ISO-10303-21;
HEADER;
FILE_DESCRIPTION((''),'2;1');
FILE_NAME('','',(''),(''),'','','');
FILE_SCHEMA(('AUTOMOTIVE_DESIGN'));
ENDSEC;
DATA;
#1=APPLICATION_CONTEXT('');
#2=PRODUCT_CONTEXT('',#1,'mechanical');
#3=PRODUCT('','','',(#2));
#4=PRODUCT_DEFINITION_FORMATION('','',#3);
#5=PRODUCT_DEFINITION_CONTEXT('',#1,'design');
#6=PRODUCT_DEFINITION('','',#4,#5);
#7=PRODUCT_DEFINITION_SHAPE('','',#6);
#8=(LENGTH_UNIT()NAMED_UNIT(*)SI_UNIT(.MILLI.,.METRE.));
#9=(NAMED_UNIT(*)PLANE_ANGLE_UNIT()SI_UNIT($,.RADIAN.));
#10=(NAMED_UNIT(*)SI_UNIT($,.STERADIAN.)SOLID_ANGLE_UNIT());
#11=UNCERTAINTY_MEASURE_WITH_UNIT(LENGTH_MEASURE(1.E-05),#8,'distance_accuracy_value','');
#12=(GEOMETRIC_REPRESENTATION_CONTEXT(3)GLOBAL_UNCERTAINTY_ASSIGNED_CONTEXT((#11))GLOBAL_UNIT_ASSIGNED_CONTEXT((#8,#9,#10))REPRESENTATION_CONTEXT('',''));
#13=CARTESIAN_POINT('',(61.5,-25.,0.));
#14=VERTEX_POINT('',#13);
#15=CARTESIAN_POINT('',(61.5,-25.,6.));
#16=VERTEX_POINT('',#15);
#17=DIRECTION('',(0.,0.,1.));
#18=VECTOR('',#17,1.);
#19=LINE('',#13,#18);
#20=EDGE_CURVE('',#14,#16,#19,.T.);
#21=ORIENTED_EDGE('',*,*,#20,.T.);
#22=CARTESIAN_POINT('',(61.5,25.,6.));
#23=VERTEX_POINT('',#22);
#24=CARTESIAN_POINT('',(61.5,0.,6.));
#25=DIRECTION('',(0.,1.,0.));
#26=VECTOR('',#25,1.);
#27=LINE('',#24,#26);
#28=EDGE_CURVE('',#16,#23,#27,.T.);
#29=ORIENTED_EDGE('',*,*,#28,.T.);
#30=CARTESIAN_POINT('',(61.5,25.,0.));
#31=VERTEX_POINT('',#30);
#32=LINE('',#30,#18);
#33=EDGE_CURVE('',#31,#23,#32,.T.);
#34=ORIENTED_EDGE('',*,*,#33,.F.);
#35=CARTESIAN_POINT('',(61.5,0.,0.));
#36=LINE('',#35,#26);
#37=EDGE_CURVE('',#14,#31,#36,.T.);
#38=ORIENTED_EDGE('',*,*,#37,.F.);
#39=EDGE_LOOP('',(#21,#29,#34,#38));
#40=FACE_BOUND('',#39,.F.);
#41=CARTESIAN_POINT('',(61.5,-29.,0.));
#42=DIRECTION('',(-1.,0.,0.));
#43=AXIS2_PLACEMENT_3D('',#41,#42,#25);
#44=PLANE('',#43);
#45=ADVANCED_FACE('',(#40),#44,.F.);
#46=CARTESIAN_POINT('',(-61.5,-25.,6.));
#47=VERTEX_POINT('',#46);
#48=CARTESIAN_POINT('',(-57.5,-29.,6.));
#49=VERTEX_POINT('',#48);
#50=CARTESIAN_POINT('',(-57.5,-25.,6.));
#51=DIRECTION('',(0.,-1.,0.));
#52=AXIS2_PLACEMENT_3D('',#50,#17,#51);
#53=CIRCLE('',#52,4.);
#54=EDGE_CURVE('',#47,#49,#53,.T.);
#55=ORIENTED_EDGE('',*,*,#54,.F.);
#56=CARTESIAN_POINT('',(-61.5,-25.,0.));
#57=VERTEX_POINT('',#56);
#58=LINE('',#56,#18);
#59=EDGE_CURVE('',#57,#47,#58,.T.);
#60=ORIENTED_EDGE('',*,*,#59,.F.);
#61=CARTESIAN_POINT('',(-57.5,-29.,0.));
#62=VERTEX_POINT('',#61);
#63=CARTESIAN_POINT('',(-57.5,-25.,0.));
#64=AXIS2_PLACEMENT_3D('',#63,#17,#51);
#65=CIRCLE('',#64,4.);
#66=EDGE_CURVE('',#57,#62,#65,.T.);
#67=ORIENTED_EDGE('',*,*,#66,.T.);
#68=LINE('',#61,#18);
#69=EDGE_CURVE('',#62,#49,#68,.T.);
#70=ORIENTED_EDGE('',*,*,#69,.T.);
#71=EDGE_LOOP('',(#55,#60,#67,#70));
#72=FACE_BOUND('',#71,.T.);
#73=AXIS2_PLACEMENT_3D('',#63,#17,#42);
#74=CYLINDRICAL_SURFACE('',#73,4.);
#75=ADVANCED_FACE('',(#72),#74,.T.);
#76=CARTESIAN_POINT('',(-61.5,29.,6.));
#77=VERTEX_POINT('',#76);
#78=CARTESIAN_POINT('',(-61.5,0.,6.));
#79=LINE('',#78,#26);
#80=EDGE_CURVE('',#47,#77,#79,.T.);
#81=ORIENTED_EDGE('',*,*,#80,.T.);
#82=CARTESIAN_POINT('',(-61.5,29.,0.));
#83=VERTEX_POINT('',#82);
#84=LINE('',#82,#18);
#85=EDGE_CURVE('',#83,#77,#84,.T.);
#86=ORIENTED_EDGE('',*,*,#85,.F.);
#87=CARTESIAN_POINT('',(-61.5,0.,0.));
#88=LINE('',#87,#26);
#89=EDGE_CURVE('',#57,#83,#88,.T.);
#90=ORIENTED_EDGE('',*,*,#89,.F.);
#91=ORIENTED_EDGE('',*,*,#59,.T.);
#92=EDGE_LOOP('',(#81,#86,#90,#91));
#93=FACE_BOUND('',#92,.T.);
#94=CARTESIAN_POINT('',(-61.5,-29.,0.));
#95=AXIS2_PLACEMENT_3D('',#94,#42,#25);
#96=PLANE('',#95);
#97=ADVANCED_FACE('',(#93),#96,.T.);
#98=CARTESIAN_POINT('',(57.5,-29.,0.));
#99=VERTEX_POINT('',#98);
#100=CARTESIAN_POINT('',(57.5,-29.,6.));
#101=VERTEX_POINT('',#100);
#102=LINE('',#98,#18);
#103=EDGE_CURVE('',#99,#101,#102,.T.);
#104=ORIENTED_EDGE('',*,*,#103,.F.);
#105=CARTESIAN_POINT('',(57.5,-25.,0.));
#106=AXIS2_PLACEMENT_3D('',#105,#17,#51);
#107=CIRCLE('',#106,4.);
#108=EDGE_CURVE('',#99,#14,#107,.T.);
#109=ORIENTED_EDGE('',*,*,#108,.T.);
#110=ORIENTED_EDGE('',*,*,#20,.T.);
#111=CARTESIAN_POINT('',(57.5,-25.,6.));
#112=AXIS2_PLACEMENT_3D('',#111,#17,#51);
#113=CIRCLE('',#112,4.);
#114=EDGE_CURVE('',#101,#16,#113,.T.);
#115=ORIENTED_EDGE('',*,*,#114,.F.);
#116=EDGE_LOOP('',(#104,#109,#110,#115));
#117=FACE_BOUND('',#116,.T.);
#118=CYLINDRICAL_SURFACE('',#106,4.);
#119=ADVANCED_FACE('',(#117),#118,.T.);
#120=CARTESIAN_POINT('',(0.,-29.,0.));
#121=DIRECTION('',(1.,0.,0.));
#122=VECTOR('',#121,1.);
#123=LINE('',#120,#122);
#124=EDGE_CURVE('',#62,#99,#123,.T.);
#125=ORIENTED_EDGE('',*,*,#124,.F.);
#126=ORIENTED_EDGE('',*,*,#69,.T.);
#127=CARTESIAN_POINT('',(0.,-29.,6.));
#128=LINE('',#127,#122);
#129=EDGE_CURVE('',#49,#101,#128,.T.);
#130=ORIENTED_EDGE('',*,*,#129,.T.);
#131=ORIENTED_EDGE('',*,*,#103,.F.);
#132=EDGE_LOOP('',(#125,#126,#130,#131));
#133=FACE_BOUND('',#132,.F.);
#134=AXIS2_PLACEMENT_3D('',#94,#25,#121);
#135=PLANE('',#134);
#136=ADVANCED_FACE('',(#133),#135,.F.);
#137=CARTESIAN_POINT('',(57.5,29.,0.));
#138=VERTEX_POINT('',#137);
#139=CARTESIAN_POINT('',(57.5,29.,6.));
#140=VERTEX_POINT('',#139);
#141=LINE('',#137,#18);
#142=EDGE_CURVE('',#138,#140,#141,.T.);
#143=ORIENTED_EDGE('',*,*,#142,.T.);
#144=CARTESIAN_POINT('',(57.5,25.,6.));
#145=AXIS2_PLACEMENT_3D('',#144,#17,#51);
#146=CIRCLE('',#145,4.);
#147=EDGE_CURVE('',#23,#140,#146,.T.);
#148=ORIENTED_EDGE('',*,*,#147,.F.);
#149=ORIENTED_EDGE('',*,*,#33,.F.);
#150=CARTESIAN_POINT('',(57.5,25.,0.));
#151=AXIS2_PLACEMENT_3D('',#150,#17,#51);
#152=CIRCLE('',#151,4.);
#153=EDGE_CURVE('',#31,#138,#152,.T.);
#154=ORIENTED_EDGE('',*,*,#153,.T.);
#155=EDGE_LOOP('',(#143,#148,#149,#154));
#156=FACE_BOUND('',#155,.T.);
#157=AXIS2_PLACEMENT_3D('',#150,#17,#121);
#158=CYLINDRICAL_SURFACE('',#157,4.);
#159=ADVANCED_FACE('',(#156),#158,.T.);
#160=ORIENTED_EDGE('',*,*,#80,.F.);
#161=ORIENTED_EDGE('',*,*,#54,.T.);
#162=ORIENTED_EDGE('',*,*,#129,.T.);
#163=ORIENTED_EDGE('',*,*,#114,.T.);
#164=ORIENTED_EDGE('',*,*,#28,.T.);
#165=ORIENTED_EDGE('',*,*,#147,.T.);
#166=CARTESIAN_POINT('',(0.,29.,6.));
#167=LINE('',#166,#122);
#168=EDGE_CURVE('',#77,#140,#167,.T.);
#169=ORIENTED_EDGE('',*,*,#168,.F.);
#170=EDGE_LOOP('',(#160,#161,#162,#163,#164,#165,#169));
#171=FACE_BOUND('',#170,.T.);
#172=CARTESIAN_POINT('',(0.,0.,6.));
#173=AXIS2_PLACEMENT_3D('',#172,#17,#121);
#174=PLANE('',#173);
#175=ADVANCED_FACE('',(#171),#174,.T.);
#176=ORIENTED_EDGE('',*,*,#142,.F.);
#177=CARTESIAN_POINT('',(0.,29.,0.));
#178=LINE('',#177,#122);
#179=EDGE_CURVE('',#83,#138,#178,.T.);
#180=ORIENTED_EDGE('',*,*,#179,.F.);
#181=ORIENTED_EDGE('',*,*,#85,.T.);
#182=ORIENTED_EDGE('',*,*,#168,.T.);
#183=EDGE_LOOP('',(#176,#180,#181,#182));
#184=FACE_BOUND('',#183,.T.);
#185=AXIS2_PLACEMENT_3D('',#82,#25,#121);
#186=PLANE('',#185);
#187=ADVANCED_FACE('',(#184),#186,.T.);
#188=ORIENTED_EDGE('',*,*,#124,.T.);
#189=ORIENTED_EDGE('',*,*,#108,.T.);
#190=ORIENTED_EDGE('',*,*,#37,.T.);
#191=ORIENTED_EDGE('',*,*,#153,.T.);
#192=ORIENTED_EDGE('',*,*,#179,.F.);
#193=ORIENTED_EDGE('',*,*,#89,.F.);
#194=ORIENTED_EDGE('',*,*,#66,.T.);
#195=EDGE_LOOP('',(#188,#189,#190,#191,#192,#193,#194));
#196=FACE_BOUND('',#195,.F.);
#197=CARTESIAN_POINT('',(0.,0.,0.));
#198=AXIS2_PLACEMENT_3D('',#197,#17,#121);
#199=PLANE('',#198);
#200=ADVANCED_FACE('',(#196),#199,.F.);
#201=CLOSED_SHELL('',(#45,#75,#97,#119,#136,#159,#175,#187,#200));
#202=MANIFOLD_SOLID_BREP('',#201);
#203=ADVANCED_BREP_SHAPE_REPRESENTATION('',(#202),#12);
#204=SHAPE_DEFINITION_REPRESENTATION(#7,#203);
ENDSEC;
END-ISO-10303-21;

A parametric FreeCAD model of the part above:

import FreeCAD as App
import Part
import Sketcher


def edges_at(feature, points):
    """Names of the edges that pass closest to the given points."""
    edges = feature.Shape.Edges
    near = lambda p: min(range(len(edges)), key=lambda i: edges[i].distToShape(Part.Vertex(*p))[0])
    return sorted({f"Edge{near(p) + 1}" for p in points})


def add_polygon(sketch, points):
    """Adds a closed chain of lines whose ends are joined by coincident constraints."""
    first, n = sketch.GeometryCount, len(points)
    for a, b in zip(points, points[1:] + points[:1]):
        sketch.addGeometry(Part.LineSegment(App.Vector(*a, 0), App.Vector(*b, 0)), False)
    for i in range(n):
        sketch.addConstraint(Sketcher.Constraint("Coincident", first + i, 2, first + (i + 1) % n, 1))

doc = App.newDocument("Part")
body = doc.addObject("PartDesign::Body", "Body")

# Sketch on XY plane
sketch1 = body.newObject("Sketcher::SketchObject", "Sketch")
sketch1.AttachmentSupport = (doc.getObject("XY_Plane"), [""])
sketch1.MapMode = "FlatFace"
add_polygon(sketch1, [(-62, 29), (-62, -29), (62, -29), (62, 29)])  # lines 0-3
sketch1.addConstraint(Sketcher.Constraint("Vertical", 0))
sketch1.addConstraint(Sketcher.Constraint("Horizontal", 1))
sketch1.addConstraint(Sketcher.Constraint("Vertical", 2))
sketch1.addConstraint(Sketcher.Constraint("Horizontal", 3))
sketch1.addConstraint(Sketcher.Constraint("Symmetric", 0, 2, 2, 2, -1, 1))
sketch1.addConstraint(Sketcher.Constraint("DistanceX", 1, 1, 1, 2, 123.0))
sketch1.addConstraint(Sketcher.Constraint("DistanceY", 0, 2, 0, 1, 58.0))
pad1 = body.newObject("PartDesign::Pad", "Pad")
pad1.Profile = sketch1
pad1.Length = 6
doc.recompute()

fillet = body.newObject("PartDesign::Fillet", "Fillet")
fillet.Base = (pad1, edges_at(pad1, [(61.5, -29, 3), (-61.5, -29, 3), (61.5, 29, 3)]))
fillet.Radius = 4

doc.recompute()
